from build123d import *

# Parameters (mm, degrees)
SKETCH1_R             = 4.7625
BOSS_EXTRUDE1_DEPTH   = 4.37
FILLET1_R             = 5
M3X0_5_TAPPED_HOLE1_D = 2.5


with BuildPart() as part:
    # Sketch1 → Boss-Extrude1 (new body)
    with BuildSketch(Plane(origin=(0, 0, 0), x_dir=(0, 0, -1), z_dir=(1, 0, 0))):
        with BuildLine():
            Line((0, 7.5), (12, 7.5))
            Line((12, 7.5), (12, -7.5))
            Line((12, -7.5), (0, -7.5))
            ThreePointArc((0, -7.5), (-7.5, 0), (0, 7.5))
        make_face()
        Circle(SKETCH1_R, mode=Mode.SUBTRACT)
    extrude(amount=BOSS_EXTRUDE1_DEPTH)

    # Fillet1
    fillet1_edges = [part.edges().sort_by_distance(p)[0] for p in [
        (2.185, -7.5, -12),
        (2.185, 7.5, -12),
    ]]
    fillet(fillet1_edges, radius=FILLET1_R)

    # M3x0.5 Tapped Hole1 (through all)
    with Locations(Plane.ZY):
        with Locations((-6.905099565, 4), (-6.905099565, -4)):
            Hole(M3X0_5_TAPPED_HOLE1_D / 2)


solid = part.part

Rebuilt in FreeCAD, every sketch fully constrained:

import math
import FreeCAD as App
import Part
import Sketcher


def edges_at(feature, points):
    """Names of the edges that pass closest to the given points."""
    edges = feature.Shape.Edges
    near = lambda p: min(range(len(edges)), key=lambda i: edges[i].distToShape(Part.Vertex(*p))[0])
    return sorted({f"Edge{near(p) + 1}" for p in points})

doc = App.newDocument("Part")
body = doc.addObject("PartDesign::Body", "Body")

sketch1 = body.newObject("Sketcher::SketchObject", "Sketch")
sketch1.AttachmentSupport = (doc.getObject("YZ_Plane"), [""])
sketch1.MapMode = "FlatFace"
sketch1.addGeometry(Part.LineSegment(App.Vector(7.5, -12, 0), App.Vector(7.5, 0, 0)), False)
sketch1.addGeometry(Part.ArcOfCircle(Part.Circle(App.Vector(0, 0, 0), App.Vector(0, 0, 1), 7.5), math.radians(0), math.radians(180)), False)
sketch1.addGeometry(Part.LineSegment(App.Vector(-7.5, 0, 0), App.Vector(-7.5, -12, 0)), False)
sketch1.addGeometry(Part.LineSegment(App.Vector(-7.5, -12, 0), App.Vector(7.5, -12, 0)), False)
sketch1.addGeometry(Part.Circle(App.Vector(0, 0, 0), App.Vector(0, 0, 1), 4.7625), False)
sketch1.addConstraint(Sketcher.Constraint("Tangent", 0, 2, 1, 1))
sketch1.addConstraint(Sketcher.Constraint("Tangent", 1, 2, 2, 1))
sketch1.addConstraint(Sketcher.Constraint("Coincident", 2, 2, 3, 1))
sketch1.addConstraint(Sketcher.Constraint("Coincident", 3, 2, 0, 1))
sketch1.addConstraint(Sketcher.Constraint("Vertical", 0))
sketch1.addConstraint(Sketcher.Constraint("Vertical", 2))
sketch1.addConstraint(Sketcher.Constraint("Horizontal", 3))
sketch1.addConstraint(Sketcher.Constraint("Coincident", 1, 3, -1, 1))
sketch1.addConstraint(Sketcher.Constraint("Coincident", 4, 3, -1, 1))
sketch1.addConstraint(Sketcher.Constraint("Radius", 1, 7.5))
sketch1.addConstraint(Sketcher.Constraint("DistanceY", 0, 1, 0, 2, 12.0))
sketch1.addConstraint(Sketcher.Constraint("Diameter", 4, 9.525))
pad1 = body.newObject("PartDesign::Pad", "Pad")
pad1.Profile = sketch1
pad1.Length = 4.37
doc.recompute()

fillet = body.newObject("PartDesign::Fillet", "Fillet")
fillet.Base = (pad1, edges_at(pad1, [(2.185, -7.5, -12), (2.185, 7.5, -12)]))
fillet.Radius = 5

sketch2 = body.newObject("Sketcher::SketchObject", "Sketch001")
sketch2.AttachmentSupport = (doc.getObject("YZ_Plane"), [""])
sketch2.MapMode = "FlatFace"
sketch2.addGeometry(Part.Circle(App.Vector(4, -6.9051, 0), App.Vector(0, 0, 1), 1.25), False)
sketch2.addGeometry(Part.Circle(App.Vector(-4, -6.9051, 0), App.Vector(0, 0, 1), 1.25), False)
sketch2.addConstraint(Sketcher.Constraint("Equal", 0, 1))
sketch2.addConstraint(Sketcher.Constraint("Symmetric", 0, 3, 1, 3, -2))
sketch2.addConstraint(Sketcher.Constraint("Diameter", 0, 2.5))
sketch2.addConstraint(Sketcher.Constraint("DistanceX", -1, 1, 0, 3, 4.0))
sketch2.addConstraint(Sketcher.Constraint("DistanceY", 0, 3, -1, 1, 6.9051))
doc.recompute()
hole = body.newObject("PartDesign::Hole", "Hole")
hole.Profile = sketch2
hole.ThreadType = "None"
hole.Diameter = 2.5
hole.DepthType = "ThroughAll"
hole.Reversed = True

doc.recompute()
